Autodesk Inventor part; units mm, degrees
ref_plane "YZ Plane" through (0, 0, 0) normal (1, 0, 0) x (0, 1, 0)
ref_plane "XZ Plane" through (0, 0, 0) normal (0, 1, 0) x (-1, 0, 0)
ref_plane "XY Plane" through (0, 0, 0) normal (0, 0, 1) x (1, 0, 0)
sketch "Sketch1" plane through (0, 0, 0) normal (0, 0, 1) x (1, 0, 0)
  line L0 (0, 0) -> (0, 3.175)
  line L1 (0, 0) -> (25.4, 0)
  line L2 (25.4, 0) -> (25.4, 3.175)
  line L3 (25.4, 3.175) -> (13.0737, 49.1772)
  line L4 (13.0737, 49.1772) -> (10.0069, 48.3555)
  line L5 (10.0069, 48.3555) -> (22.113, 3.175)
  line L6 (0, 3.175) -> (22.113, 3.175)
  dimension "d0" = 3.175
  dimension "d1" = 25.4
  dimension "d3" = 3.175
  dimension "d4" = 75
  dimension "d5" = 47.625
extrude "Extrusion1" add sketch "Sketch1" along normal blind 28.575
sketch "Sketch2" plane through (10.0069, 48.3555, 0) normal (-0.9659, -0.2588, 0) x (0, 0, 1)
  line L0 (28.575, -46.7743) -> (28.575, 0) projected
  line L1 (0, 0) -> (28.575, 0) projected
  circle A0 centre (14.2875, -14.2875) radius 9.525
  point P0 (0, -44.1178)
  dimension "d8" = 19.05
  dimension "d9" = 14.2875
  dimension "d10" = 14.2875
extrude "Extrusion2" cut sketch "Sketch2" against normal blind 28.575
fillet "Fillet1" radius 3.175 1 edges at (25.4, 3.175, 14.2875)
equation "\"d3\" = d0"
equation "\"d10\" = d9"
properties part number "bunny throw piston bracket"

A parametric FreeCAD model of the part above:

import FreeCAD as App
import Part
import Sketcher

V = App.Vector
Q = App.Units.Quantity


def edges_at(feature, points):
    """Names of the edges that pass closest to the given points."""
    edges = feature.Shape.Edges
    near = lambda p: min(range(len(edges)), key=lambda i: edges[i].distToShape(Part.Vertex(*p))[0])
    return sorted({f"Edge{near(p) + 1}" for p in points})


def add_polygon(sketch, points):
    """Adds a closed chain of lines whose ends are joined by coincident constraints."""
    first, n = sketch.GeometryCount, len(points)
    for a, b in zip(points, points[1:] + points[:1]):
        sketch.addGeometry(Part.LineSegment(App.Vector(*a, 0), App.Vector(*b, 0)), False)
    for i in range(n):
        sketch.addConstraint(Sketcher.Constraint("Coincident", first + i, 2, first + (i + 1) % n, 1))

doc = App.newDocument("Part")
body = doc.addObject("PartDesign::Body", "Body")

# Sketch on XY plane
sketch1 = body.newObject("Sketcher::SketchObject", "Sketch")
sketch1.AttachmentSupport = (doc.getObject("XY_Plane"), [""])
sketch1.MapMode = "FlatFace"
add_polygon(sketch1, [(0, 3.175), (0, 0), (25.4, 0), (25.4, 3.175), (13.0737, 49.1772), (10.0069, 48.3555), (22.113, 3.175)])  # lines 0-6
sketch1.addConstraint([
    Sketcher.Constraint("Vertical", 0),
    Sketcher.Constraint("Horizontal", 1),
    Sketcher.Constraint("Vertical", 2),
    Sketcher.Constraint("Horizontal", 6),
    Sketcher.Constraint("Coincident", 0, 2, -1, 1),
    Sketcher.Constraint("Perpendicular", 3, 4),
    Sketcher.Constraint("Perpendicular", 4, 5),
    Sketcher.Constraint("Horizontal", 2, 2, 5, 2),
    Sketcher.Constraint("DistanceX", 1, 1, 1, 2, Q("1 in")),
    Sketcher.Constraint("Angle", 5, Q("-75 deg")),
    Sketcher.Constraint("DistanceY", 0, 2, 0, 1, Q("0.125 in")),
    Sketcher.Constraint("Distance", 3, Q("1.875 in")),
    Sketcher.Constraint("Distance", 4, Q("0.125 in")),
])
pad1 = body.newObject("PartDesign::Pad", "Pad")
pad1.Profile = sketch1
pad1.Length = Q("1.125 in")

# Sketch on an angled plane
sketch2 = body.newObject("Sketcher::SketchObject", "Sketch001")
sketch2.Placement = App.Placement(V(10.0069, 48.3555, 0), App.Rotation(V(0, 0, 1), V(-0.258819045, 0.965925826, 0), V(-0.965925826, -0.258819045, 0), "ZXY"))
sketch2.addGeometry(Part.Circle(V(14.2875, -14.2875, 0), V(0, 0, 1), 9.525), False)
sketch2.addConstraint([
    Sketcher.Constraint("Diameter", 0, Q("0.75 in")),
    Sketcher.Constraint("DistanceX", -1, 1, 0, 3, Q("0.5625 in")),
    Sketcher.Constraint("DistanceY", 0, 3, -1, 1, Q("0.5625 in")),
])
pocket1 = body.newObject("PartDesign::Pocket", "Pocket")
pocket1.Profile = sketch2
pocket1.Length = Q("1.125 in")
doc.recompute()

fillet = body.newObject("PartDesign::Fillet", "Fillet")
fillet.Base = (pocket1, edges_at(pocket1, [(25.4, 3.175, 14.287)]))
fillet.Radius = Q("0.125 in")

doc.recompute()
